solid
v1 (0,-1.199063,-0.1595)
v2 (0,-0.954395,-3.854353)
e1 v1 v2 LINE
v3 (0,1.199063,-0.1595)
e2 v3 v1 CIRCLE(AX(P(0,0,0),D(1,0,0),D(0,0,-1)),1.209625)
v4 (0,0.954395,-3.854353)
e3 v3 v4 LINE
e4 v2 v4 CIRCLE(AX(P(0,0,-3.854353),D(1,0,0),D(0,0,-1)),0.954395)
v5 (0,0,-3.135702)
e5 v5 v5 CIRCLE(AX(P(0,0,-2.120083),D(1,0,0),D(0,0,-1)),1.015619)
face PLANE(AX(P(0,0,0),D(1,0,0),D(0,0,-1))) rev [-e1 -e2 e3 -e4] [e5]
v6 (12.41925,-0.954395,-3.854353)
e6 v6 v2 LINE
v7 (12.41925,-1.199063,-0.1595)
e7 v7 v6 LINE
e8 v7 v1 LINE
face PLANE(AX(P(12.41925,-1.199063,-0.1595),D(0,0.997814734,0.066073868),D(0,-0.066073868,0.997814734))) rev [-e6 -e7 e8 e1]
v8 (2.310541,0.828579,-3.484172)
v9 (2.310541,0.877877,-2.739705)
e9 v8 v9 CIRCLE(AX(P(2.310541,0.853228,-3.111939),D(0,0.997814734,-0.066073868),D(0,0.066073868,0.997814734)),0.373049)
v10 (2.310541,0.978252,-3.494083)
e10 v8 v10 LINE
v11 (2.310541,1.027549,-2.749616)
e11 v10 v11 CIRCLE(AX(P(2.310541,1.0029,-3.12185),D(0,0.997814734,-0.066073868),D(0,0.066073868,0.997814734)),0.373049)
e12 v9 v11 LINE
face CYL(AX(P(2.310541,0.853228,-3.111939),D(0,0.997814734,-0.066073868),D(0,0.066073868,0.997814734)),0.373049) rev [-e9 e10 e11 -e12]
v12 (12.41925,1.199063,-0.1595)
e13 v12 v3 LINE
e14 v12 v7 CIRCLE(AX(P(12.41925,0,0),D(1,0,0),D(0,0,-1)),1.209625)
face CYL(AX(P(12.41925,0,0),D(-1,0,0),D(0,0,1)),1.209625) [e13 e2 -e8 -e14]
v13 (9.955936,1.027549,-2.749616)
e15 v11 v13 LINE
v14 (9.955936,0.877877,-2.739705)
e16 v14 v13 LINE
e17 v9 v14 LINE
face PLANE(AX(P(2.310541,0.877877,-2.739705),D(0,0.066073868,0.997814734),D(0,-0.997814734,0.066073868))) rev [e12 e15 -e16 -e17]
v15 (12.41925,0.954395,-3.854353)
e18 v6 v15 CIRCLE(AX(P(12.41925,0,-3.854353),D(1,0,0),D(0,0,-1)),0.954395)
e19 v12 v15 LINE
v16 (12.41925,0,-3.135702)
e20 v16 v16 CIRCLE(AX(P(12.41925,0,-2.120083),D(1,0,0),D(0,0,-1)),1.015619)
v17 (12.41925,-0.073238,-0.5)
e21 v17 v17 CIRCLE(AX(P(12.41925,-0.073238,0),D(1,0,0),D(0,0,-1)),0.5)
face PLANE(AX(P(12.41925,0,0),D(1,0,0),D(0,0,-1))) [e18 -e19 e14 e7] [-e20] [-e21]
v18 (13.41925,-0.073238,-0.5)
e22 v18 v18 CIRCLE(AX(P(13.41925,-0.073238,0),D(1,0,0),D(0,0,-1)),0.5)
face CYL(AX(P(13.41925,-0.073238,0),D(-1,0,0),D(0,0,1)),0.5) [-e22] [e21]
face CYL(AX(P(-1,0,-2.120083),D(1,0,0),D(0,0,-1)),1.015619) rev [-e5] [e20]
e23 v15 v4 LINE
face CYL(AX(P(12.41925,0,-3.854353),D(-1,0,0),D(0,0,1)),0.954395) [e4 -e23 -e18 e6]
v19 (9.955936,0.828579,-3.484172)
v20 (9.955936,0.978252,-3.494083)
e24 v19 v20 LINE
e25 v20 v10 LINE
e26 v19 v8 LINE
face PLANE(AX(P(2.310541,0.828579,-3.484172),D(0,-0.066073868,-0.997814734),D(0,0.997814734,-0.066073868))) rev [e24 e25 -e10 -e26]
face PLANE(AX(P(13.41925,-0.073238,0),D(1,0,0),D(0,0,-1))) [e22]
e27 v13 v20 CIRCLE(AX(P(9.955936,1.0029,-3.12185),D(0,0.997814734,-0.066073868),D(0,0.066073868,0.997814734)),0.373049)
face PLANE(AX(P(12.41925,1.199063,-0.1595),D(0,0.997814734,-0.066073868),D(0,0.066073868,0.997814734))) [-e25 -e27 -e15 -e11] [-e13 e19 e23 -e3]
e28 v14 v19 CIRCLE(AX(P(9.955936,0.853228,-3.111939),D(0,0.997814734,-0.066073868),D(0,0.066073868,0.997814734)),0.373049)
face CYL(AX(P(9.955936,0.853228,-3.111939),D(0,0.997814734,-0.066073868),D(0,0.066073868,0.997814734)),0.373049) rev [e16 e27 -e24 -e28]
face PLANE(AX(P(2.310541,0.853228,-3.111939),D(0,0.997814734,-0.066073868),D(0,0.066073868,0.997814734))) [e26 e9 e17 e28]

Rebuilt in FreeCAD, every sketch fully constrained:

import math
import FreeCAD as App
import Part
import Sketcher
from FreeCAD import Vector
Q = App.Units.Quantity

doc = App.newDocument("Part")
body = doc.addObject("PartDesign::Body", "Body")

# Sketch on YZ plane
sketch1 = doc.addObject("Sketcher::SketchObject", "Sketch")
body.addObject(sketch1)
sketch1.AttachmentSupport = (doc.YZ_Plane, [""])
sketch1.MapMode = "FlatFace"
sketch1.addGeometry([
    Part.LineSegment(Vector(0.954395, -3.854353, 0), Vector(1.199063, -0.1595, 0)),
    Part.ArcOfCircle(Part.Circle(Vector(0, 0, 0), Vector(0, 0, 1), 1.209625), math.radians(-7.577028), math.radians(187.577028)),
    Part.LineSegment(Vector(-1.199063, -0.1595, 0), Vector(-0.954395, -3.854353, 0)),
    Part.ArcOfCircle(Part.Circle(Vector(0, -3.854353, 0), Vector(0, 0, 1), 0.954395), math.radians(180), math.radians(360)),
], False)
sketch1.addConstraint([
    Sketcher.Constraint("Coincident", 0, 2, 1, 1),
    Sketcher.Constraint("Coincident", 1, 2, 2, 1),
    Sketcher.Constraint("Coincident", 2, 2, 3, 1),
    Sketcher.Constraint("Coincident", 3, 2, 0, 1),
    Sketcher.Constraint("Coincident", 1, 3, -1, 1),
    Sketcher.Constraint("Symmetric", 2, 2, 3, 2, -2),
    Sketcher.Constraint("Horizontal", 0, 2, 1, 2),
    Sketcher.Constraint("Horizontal", 3, 3, 2, 2),
    Sketcher.Constraint("Radius", 1, Q("1.209625 mm")),
    Sketcher.Constraint("Radius", 3, Q("0.954395 mm")),
    Sketcher.Constraint("DistanceY", 0, 2, -1, 1, Q("0.1595 mm")),
    Sketcher.Constraint("Distance", 0, Q("3.702945 mm")),
])
pad1 = doc.addObject("PartDesign::Pad", "Pad")
body.addObject(pad1)
pad1.Profile = sketch1
pad1.Length = 12.41925

# Sketch on YZ plane
sketch2 = doc.addObject("Sketcher::SketchObject", "Sketch001")
body.addObject(sketch2)
sketch2.AttachmentSupport = (doc.YZ_Plane, [""])
sketch2.MapMode = "FlatFace"
sketch2.AttachmentOffset = App.Placement(Vector(0, 0, 12.41925), App.Rotation())
sketch2.addGeometry(Part.Circle(Vector(0, -2.120083, 0), Vector(0, 0, 1), 1.015619), False)
sketch2.addConstraint([
    Sketcher.Constraint("PointOnObject", 0, 3, -2),
    Sketcher.Constraint("Diameter", 0, Q("2.031238 mm")),
    Sketcher.Constraint("DistanceY", 0, 3, -1, 1, Q("2.120083 mm")),
])
pocket1 = doc.addObject("PartDesign::Pocket", "Pocket")
body.addObject(pocket1)
pocket1.Profile = sketch2
pocket1.Length = 13.41925

# Sketch on YZ plane
sketch3 = doc.addObject("Sketcher::SketchObject", "Sketch002")
body.addObject(sketch3)
sketch3.AttachmentSupport = (doc.YZ_Plane, [""])
sketch3.MapMode = "FlatFace"
sketch3.AttachmentOffset = App.Placement(Vector(0, 0, 12.41925), App.Rotation())
sketch3.addGeometry(Part.Circle(Vector(-0.073238, 0, 0), Vector(0, 0, 1), 0.5), False)
sketch3.addConstraint([
    Sketcher.Constraint("PointOnObject", 0, 3, -1),
    Sketcher.Constraint("Diameter", 0, Q("1 mm")),
    Sketcher.Constraint("DistanceX", 0, 3, -1, 1, Q("0.073238 mm")),
])
pad2 = doc.addObject("PartDesign::Pad", "Pad001")
body.addObject(pad2)
pad2.Profile = sketch3
pad2.Length = 1

# Sketch on an angled plane
sketch4 = doc.addObject("Sketcher::SketchObject", "Sketch003")
body.addObject(sketch4)
sketch4.Placement = App.Placement(Vector(0, 1.204344, -0.07975), App.Rotation(Vector(1, 0, 0), Vector(0, -0.066073868, -0.997814734), Vector(0, 0.997814734, -0.066073868), "ZXY"))
sketch4.addGeometry([
    Part.LineSegment(Vector(9.955936, 3.421811, 0), Vector(2.310541, 3.421811, 0)),
    Part.ArcOfCircle(Part.Circle(Vector(2.310541, 3.048762, 0), Vector(0, 0, 1), 0.373049), math.radians(90), math.radians(270)),
    Part.LineSegment(Vector(2.310541, 2.675713, 0), Vector(9.955936, 2.675713, 0)),
    Part.ArcOfCircle(Part.Circle(Vector(9.955936, 3.048762, 0), Vector(0, 0, 1), 0.373049), math.radians(-90), math.radians(90)),
], False)
sketch4.addConstraint([
    Sketcher.Constraint("Tangent", 0, 2, 1, 1),
    Sketcher.Constraint("Tangent", 1, 2, 2, 1),
    Sketcher.Constraint("Tangent", 2, 2, 3, 1),
    Sketcher.Constraint("Tangent", 3, 2, 0, 1),
    Sketcher.Constraint("Horizontal", 0),
    Sketcher.Constraint("Horizontal", 2),
    Sketcher.Constraint("Radius", 1, Q("0.373049 mm")),
    Sketcher.Constraint("DistanceX", 0, 2, 0, 1, Q("7.645395 mm")),
    Sketcher.Constraint("DistanceX", -1, 1, 1, 3, Q("2.310541 mm")),
    Sketcher.Constraint("DistanceY", -1, 1, 0, 2, Q("3.421811 mm")),
])
pocket2 = doc.addObject("PartDesign::Pocket", "Pocket001")
body.addObject(pocket2)
pocket2.Profile = sketch4
pocket2.Length = 0.15

doc.recompute()
